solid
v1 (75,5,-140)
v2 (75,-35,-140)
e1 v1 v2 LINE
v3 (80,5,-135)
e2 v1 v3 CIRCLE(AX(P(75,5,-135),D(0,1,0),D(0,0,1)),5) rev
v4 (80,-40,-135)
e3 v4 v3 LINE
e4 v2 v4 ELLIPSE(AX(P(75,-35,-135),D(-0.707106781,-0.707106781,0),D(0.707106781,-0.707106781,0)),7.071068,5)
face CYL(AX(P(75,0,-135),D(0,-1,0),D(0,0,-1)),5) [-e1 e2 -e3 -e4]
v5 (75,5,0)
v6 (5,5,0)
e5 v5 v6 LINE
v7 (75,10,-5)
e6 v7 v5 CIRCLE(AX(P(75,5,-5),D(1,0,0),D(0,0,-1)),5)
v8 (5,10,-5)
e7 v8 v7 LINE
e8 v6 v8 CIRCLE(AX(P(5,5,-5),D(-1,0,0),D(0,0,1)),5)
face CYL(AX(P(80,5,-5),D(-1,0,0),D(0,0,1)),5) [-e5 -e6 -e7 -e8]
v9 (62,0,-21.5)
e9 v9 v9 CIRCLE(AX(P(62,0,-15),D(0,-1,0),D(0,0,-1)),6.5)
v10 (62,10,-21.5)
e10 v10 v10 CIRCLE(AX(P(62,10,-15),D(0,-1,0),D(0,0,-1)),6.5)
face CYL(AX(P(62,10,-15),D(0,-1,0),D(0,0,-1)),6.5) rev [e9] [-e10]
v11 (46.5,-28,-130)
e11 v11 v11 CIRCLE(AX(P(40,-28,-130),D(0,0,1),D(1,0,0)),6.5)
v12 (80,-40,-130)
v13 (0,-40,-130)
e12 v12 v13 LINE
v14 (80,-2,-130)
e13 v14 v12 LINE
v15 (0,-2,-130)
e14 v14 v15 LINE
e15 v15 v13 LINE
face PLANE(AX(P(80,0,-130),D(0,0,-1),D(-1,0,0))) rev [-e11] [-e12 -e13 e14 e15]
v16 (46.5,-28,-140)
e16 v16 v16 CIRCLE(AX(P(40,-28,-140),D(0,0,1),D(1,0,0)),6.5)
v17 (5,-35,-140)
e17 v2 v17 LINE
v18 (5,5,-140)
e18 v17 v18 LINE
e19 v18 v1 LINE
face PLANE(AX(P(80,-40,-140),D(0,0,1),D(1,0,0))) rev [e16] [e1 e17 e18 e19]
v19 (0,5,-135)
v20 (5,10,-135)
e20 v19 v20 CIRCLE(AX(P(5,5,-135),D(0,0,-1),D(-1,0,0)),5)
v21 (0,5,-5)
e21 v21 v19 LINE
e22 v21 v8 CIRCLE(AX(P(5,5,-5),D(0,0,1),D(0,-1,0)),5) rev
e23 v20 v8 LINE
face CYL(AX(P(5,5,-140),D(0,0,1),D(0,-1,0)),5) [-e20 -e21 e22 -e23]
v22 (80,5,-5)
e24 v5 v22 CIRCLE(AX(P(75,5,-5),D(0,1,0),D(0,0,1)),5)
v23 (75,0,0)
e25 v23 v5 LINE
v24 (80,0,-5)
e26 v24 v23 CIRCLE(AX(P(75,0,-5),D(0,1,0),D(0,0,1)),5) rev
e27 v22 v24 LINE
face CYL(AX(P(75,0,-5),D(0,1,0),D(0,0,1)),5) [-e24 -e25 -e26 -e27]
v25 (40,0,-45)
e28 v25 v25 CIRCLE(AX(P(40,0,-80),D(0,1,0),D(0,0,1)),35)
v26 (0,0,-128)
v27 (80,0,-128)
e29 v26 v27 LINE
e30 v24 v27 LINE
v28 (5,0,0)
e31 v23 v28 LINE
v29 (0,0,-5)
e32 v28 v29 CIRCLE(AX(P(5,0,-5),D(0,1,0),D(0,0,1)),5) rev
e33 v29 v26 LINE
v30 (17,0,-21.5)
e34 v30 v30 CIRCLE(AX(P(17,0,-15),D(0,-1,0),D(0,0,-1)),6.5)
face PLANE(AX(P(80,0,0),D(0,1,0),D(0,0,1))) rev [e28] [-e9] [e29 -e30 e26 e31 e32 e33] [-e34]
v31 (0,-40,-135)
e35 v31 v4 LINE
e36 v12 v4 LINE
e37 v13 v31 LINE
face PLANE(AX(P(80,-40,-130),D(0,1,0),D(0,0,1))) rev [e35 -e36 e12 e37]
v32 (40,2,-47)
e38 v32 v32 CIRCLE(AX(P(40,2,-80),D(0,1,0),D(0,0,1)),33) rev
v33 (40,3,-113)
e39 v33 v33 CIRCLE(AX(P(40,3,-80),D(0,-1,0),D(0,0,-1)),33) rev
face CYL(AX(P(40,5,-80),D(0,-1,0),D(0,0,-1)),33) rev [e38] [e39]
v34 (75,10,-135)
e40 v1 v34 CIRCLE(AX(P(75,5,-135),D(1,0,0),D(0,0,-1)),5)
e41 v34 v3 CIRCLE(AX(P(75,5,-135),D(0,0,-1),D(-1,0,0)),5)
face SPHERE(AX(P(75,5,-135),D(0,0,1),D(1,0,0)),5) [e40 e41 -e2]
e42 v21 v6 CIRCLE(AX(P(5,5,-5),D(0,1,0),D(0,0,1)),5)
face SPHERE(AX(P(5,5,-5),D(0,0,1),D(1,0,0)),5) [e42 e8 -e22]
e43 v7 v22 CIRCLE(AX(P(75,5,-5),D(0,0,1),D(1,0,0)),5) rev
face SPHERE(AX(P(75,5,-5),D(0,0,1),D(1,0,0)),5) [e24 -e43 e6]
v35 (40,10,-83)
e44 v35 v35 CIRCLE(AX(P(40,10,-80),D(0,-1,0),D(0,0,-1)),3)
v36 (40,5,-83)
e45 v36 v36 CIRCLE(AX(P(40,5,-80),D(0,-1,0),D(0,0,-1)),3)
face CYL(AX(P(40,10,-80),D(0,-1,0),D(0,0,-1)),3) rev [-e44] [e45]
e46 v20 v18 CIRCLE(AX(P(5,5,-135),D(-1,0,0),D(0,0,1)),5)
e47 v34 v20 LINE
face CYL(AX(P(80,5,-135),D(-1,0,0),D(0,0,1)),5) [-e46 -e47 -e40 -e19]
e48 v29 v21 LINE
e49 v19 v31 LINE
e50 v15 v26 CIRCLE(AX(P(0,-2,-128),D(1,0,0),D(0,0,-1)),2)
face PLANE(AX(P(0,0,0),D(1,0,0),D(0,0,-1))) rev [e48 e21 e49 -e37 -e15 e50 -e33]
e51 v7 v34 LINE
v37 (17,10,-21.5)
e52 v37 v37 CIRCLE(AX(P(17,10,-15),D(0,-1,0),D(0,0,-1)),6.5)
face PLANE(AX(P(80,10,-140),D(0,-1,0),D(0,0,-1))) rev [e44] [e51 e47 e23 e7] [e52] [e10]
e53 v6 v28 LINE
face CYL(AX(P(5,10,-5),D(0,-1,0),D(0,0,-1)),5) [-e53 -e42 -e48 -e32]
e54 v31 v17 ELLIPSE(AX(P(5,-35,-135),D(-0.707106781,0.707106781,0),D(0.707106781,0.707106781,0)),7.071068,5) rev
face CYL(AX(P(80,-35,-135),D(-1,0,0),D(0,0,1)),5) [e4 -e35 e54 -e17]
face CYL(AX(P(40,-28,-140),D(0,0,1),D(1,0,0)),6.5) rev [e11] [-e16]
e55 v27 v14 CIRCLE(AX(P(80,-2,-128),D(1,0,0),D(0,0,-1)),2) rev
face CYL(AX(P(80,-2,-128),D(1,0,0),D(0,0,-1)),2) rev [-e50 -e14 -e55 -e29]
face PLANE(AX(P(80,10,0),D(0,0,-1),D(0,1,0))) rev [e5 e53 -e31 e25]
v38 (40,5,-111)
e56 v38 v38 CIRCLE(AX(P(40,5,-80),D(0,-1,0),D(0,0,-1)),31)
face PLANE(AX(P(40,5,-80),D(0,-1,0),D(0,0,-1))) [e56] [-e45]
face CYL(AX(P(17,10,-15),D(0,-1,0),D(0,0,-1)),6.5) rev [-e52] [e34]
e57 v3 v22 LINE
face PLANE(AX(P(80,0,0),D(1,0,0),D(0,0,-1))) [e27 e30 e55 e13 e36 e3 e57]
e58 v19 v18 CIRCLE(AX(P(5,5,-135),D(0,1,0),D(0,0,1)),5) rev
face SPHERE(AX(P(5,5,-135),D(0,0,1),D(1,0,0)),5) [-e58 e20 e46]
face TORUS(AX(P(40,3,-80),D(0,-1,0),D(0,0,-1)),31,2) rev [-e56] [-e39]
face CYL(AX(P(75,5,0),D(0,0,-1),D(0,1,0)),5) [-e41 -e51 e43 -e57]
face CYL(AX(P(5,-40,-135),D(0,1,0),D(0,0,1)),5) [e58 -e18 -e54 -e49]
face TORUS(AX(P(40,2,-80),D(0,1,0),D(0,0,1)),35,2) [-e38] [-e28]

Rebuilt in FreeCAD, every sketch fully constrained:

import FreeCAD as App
import Part
import Sketcher

V = App.Vector


def edges_at(feature, points):
    """Names of the edges that pass closest to the given points."""
    edges = feature.Shape.Edges
    near = lambda p: min(range(len(edges)), key=lambda i: edges[i].distToShape(Part.Vertex(*p))[0])
    return sorted({f"Edge{near(p) + 1}" for p in points})

doc = App.newDocument("Part")
body = doc.addObject("PartDesign::Body", "Body")

# Sketch on YZ plane
sketch1 = body.newObject("Sketcher::SketchObject", "Sketch")
sketch1.AttachmentSupport = (doc.getObject("YZ_Plane"), [""])
sketch1.MapMode = "FlatFace"
sketch1.addGeometry(Part.LineSegment(V(0, 0, 0), V(0, -130, 0)), False)
sketch1.addGeometry(Part.LineSegment(V(0, -130, 0), V(-40, -130, 0)), False)
sketch1.addGeometry(Part.LineSegment(V(-40, -130, 0), V(-40, -140, 0)), False)
sketch1.addGeometry(Part.LineSegment(V(-40, -140, 0), V(10, -140, 0)), False)
sketch1.addGeometry(Part.LineSegment(V(10, -140, 0), V(10, 0, 0)), False)
sketch1.addGeometry(Part.LineSegment(V(10, 0, 0), V(0, 0, 0)), False)
sketch1.addConstraint(Sketcher.Constraint("Coincident", 0, 2, 1, 1))
sketch1.addConstraint(Sketcher.Constraint("Coincident", 1, 2, 2, 1))
sketch1.addConstraint(Sketcher.Constraint("Coincident", 2, 2, 3, 1))
sketch1.addConstraint(Sketcher.Constraint("Coincident", 3, 2, 4, 1))
sketch1.addConstraint(Sketcher.Constraint("Coincident", 4, 2, 5, 1))
sketch1.addConstraint(Sketcher.Constraint("Coincident", 5, 2, 0, 1))
sketch1.addConstraint(Sketcher.Constraint("Vertical", 0))
sketch1.addConstraint(Sketcher.Constraint("Horizontal", 1))
sketch1.addConstraint(Sketcher.Constraint("Vertical", 2))
sketch1.addConstraint(Sketcher.Constraint("Horizontal", 3))
sketch1.addConstraint(Sketcher.Constraint("Vertical", 4))
sketch1.addConstraint(Sketcher.Constraint("Horizontal", 5))
sketch1.addConstraint(Sketcher.Constraint("Coincident", 5, 2, -1, 1))
sketch1.addConstraint(Sketcher.Constraint("Equal", 5, 2))
sketch1.addConstraint(Sketcher.Constraint("DistanceX", 1, 2, 1, 1, 40.0))
sketch1.addConstraint(Sketcher.Constraint("DistanceX", 3, 1, 3, 2, 50.0))
sketch1.addConstraint(Sketcher.Constraint("DistanceY", 0, 2, 0, 1, 130.0))
pad1 = body.newObject("PartDesign::Pad", "Pad")
pad1.Profile = sketch1
pad1.Length = 80

# Sketch on XZ plane
sketch2 = body.newObject("Sketcher::SketchObject", "Sketch001")
sketch2.AttachmentSupport = (doc.getObject("XZ_Plane"), [""])
sketch2.MapMode = "FlatFace"
sketch2.addGeometry(Part.Circle(V(17, -15, 0), V(0, 0, 1), 6.5), False)
sketch2.addGeometry(Part.Circle(V(62, -15, 0), V(0, 0, 1), 6.5), False)
sketch2.addConstraint(Sketcher.Constraint("Equal", 0, 1))
sketch2.addConstraint(Sketcher.Constraint("Horizontal", 0, 3, 1, 3))
sketch2.addConstraint(Sketcher.Constraint("Diameter", 0, 13.0))
sketch2.addConstraint(Sketcher.Constraint("DistanceX", -1, 1, 0, 3, 17.0))
sketch2.addConstraint(Sketcher.Constraint("DistanceY", 0, 3, -1, 1, 15.0))
sketch2.addConstraint(Sketcher.Constraint("DistanceX", -1, 1, 1, 3, 62.0))
pocket1 = body.newObject("PartDesign::Pocket", "Pocket")
pocket1.Profile = sketch2
pocket1.Type = "ThroughAll"

# Sketch on XZ plane
sketch3 = body.newObject("Sketcher::SketchObject", "Sketch002")
sketch3.AttachmentSupport = (doc.getObject("XZ_Plane"), [""])
sketch3.MapMode = "FlatFace"
sketch3.addGeometry(Part.Circle(V(40, -80, 0), V(0, 0, 1), 33), False)
sketch3.addConstraint(Sketcher.Constraint("Diameter", 0, 66.0))
sketch3.addConstraint(Sketcher.Constraint("DistanceX", -1, 1, 0, 3, 40.0))
sketch3.addConstraint(Sketcher.Constraint("DistanceY", 0, 3, -1, 1, 80.0))
pocket2 = body.newObject("PartDesign::Pocket", "Pocket001")
pocket2.Profile = sketch3
pocket2.Length = 5
doc.recompute()

fillet = body.newObject("PartDesign::Fillet", "Fillet")
fillet.Base = (pocket2, edges_at(pocket2, [(40, 5, -47), (40, 0, -47)]))
fillet.Radius = 2

# Sketch on XY plane
sketch4 = body.newObject("Sketcher::SketchObject", "Sketch003")
sketch4.AttachmentSupport = (doc.getObject("XY_Plane"), [""])
sketch4.MapMode = "FlatFace"
sketch4.AttachmentOffset = App.Placement(V(0, 0, -130), App.Rotation())
sketch4.addGeometry(Part.Circle(V(40, -28, 0), V(0, 0, 1), 6.5), False)
sketch4.addConstraint(Sketcher.Constraint("Diameter", 0, 13.0))
sketch4.addConstraint(Sketcher.Constraint("DistanceX", -1, 1, 0, 3, 40.0))
sketch4.addConstraint(Sketcher.Constraint("DistanceY", 0, 3, -1, 1, 28.0))
pocket3 = body.newObject("PartDesign::Pocket", "Pocket002")
pocket3.Profile = sketch4
pocket3.Type = "ThroughAll"
doc.recompute()

fillet2 = body.newObject("PartDesign::Fillet", "Fillet001")
fillet2.Base = (pocket3, edges_at(pocket3, [
    (40, 10, 0),
    (40, 10, -140),
    (40, -40, -140),
    (80, -15, -140),
    (80, 10, -70),
    (80, 5, 0),
    (0, 10, -70),
    (0, -15, -140),
    (0, 5, 0),
]))
fillet2.Radius = 5
doc.recompute()

fillet3 = body.newObject("PartDesign::Fillet", "Fillet002")
fillet3.Base = (fillet2, edges_at(fillet2, [(40, 0, -130)]))
fillet3.Radius = 2

# Sketch on XZ plane
sketch5 = body.newObject("Sketcher::SketchObject", "Sketch004")
sketch5.AttachmentSupport = (doc.getObject("XZ_Plane"), [""])
sketch5.MapMode = "FlatFace"
sketch5.AttachmentOffset = App.Placement(V(0, 0, -5), App.Rotation())
sketch5.addGeometry(Part.Circle(V(40, -80, 0), V(0, 0, 1), 3), False)
sketch5.addConstraint(Sketcher.Constraint("Diameter", 0, 6.0))
sketch5.addConstraint(Sketcher.Constraint("DistanceX", -1, 1, 0, 3, 40.0))
sketch5.addConstraint(Sketcher.Constraint("DistanceY", 0, 3, -1, 1, 80.0))
pocket4 = body.newObject("PartDesign::Pocket", "Pocket003")
pocket4.Profile = sketch5
pocket4.Type = "ThroughAll"

doc.recompute()
